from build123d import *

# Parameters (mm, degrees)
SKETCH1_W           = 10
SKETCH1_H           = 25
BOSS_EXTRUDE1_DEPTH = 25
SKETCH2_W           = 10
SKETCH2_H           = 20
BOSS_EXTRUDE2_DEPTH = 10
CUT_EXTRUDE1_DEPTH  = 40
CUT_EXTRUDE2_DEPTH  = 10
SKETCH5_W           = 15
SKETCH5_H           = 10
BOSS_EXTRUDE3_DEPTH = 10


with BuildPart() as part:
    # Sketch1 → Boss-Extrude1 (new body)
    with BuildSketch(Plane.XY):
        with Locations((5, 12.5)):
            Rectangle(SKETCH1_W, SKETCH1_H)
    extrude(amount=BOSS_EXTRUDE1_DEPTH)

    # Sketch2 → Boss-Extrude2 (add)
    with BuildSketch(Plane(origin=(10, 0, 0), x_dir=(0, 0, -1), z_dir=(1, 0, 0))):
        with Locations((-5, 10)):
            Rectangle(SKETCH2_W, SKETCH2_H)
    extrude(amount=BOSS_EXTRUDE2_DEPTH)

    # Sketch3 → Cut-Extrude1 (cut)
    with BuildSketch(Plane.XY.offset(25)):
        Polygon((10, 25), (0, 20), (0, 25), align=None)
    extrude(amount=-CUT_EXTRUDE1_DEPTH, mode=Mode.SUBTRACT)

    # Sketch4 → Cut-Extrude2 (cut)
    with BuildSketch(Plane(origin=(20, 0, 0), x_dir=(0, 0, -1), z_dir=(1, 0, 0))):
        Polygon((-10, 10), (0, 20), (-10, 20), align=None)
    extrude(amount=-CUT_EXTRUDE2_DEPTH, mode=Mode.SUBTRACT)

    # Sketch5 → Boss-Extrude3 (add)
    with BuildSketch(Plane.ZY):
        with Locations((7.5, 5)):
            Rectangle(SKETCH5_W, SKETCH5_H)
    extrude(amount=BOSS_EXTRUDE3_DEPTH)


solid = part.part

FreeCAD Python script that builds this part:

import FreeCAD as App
import Part
import Sketcher
from FreeCAD import Vector


def add_polygon(sketch, points):
    """Adds a closed chain of lines whose ends are joined by coincident constraints."""
    first, n = sketch.GeometryCount, len(points)
    for a, b in zip(points, points[1:] + points[:1]):
        sketch.addGeometry(Part.LineSegment(App.Vector(*a, 0), App.Vector(*b, 0)), False)
    for i in range(n):
        sketch.addConstraint(Sketcher.Constraint("Coincident", first + i, 2, first + (i + 1) % n, 1))

doc = App.newDocument("Part")
params = doc.addObject("Spreadsheet::Sheet", "Params")
for row, (alias, value) in enumerate([
    ("sketch1_width", "10 mm"),
    ("sketch1_height", "25 mm"),
    ("pad1_length", "25 mm"),
    ("sketch2_width", "20 mm"),
    ("sketch2_height", "10 mm"),
    ("pad2_length", "10 mm"),
    ("sketch3_width", "10 mm"),
    ("sketch3_height", "5 mm"),
    ("pocket1_length", "40 mm"),
    ("sketch4_width", "10 mm"),
    ("pocket2_length", "10 mm"),
    ("sketch5_width", "10 mm"),
    ("sketch5_height", "15 mm"),
    ("pad3_length", "10 mm"),
], start=1):
    params.set(f"A{row}", alias)
    params.set(f"B{row}", "=" + value)
    params.setAlias(f"B{row}", alias)

body = doc.addObject("PartDesign::Body", "Body")

# Sketch on XY plane
sketch1 = body.newObject("Sketcher::SketchObject", "Sketch")
sketch1.AttachmentSupport = (doc.getObject("XY_Plane"), [""])
sketch1.MapMode = "FlatFace"
add_polygon(sketch1, [(0, 25), (0, 0), (10, 0), (10, 25)])  # lines 0-3
sketch1.addConstraint([
    Sketcher.Constraint("Vertical", 0),
    Sketcher.Constraint("Horizontal", 1),
    Sketcher.Constraint("Vertical", 2),
    Sketcher.Constraint("Horizontal", 3),
    Sketcher.Constraint("Coincident", 0, 2, -1, 1),
    Sketcher.Constraint("DistanceX", 1, 1, 1, 2, 10.0),
    Sketcher.Constraint("DistanceY", 0, 2, 0, 1, 25.0),
])
sketch1.setExpression("Constraints[9]", "Params.sketch1_width")
sketch1.setExpression("Constraints[10]", "Params.sketch1_height")
pad1 = body.newObject("PartDesign::Pad", "Pad")
pad1.Profile = sketch1
pad1.setExpression("Length", "Params.pad1_length")

# Sketch on YZ plane
sketch2 = body.newObject("Sketcher::SketchObject", "Sketch001")
sketch2.AttachmentSupport = (doc.getObject("YZ_Plane"), [""])
sketch2.MapMode = "FlatFace"
sketch2.AttachmentOffset = App.Placement(Vector(0, 0, 10), App.Rotation())
add_polygon(sketch2, [(20, 10), (0, 10), (0, 0), (20, 0)])  # lines 0-3
sketch2.addConstraint([
    Sketcher.Constraint("Horizontal", 0),
    Sketcher.Constraint("Vertical", 1),
    Sketcher.Constraint("Horizontal", 2),
    Sketcher.Constraint("Vertical", 3),
    Sketcher.Constraint("Coincident", 1, 2, -1, 1),
    Sketcher.Constraint("DistanceX", 0, 2, 0, 1, 20.0),
    Sketcher.Constraint("DistanceY", 1, 2, 1, 1, 10.0),
])
sketch2.setExpression("Constraints[9]", "Params.sketch2_width")
sketch2.setExpression("Constraints[10]", "Params.sketch2_height")
pad2 = body.newObject("PartDesign::Pad", "Pad001")
pad2.Profile = sketch2
pad2.setExpression("Length", "Params.pad2_length")

# Sketch on XY plane
sketch3 = body.newObject("Sketcher::SketchObject", "Sketch002")
sketch3.AttachmentSupport = (doc.getObject("XY_Plane"), [""])
sketch3.MapMode = "FlatFace"
sketch3.AttachmentOffset = App.Placement(Vector(0, 0, 25), App.Rotation())
add_polygon(sketch3, [(0, 20), (10, 25), (0, 25)])  # lines 0-2
sketch3.addConstraint([
    Sketcher.Constraint("Horizontal", 1),
    Sketcher.Constraint("Vertical", 2),
    Sketcher.Constraint("PointOnObject", 1, 2, -2),
    Sketcher.Constraint("DistanceX", 1, 2, 1, 1, 10.0),
    Sketcher.Constraint("DistanceY", 2, 2, 2, 1, 5.0),
    Sketcher.Constraint("DistanceY", -1, 1, 0, 2, 25.0),
])
sketch3.setExpression("Constraints[6]", "Params.sketch3_width")
sketch3.setExpression("Constraints[7]", "Params.sketch3_height")
pocket1 = body.newObject("PartDesign::Pocket", "Pocket")
pocket1.Profile = sketch3
pocket1.setExpression("Length", "Params.pocket1_length")

# Sketch on YZ plane
sketch4 = body.newObject("Sketcher::SketchObject", "Sketch003")
sketch4.AttachmentSupport = (doc.getObject("YZ_Plane"), [""])
sketch4.MapMode = "FlatFace"
sketch4.AttachmentOffset = App.Placement(Vector(0, 0, 20), App.Rotation())
add_polygon(sketch4, [(10, 10), (20, 0), (20, 10)])  # lines 0-2
sketch4.addConstraint([
    Sketcher.Constraint("Vertical", 1),
    Sketcher.Constraint("Horizontal", 2),
    Sketcher.Constraint("PointOnObject", 0, 2, -1),
    Sketcher.Constraint("Equal", 2, 1),
    Sketcher.Constraint("DistanceX", 2, 2, 2, 1, 10.0),
    Sketcher.Constraint("DistanceX", -1, 1, 0, 2, 20.0),
])
sketch4.setExpression("Constraints[7]", "Params.sketch4_width")
pocket2 = body.newObject("PartDesign::Pocket", "Pocket001")
pocket2.Profile = sketch4
pocket2.setExpression("Length", "Params.pocket2_length")

# Sketch on YZ plane
sketch5 = body.newObject("Sketcher::SketchObject", "Sketch004")
sketch5.AttachmentSupport = (doc.getObject("YZ_Plane"), [""])
sketch5.MapMode = "FlatFace"
add_polygon(sketch5, [(10, 0), (0, 0), (0, 15), (10, 15)])  # lines 0-3
sketch5.addConstraint([
    Sketcher.Constraint("Horizontal", 0),
    Sketcher.Constraint("Vertical", 1),
    Sketcher.Constraint("Horizontal", 2),
    Sketcher.Constraint("Vertical", 3),
    Sketcher.Constraint("Coincident", 0, 2, -1, 1),
    Sketcher.Constraint("DistanceX", 0, 2, 0, 1, 10.0),
    Sketcher.Constraint("DistanceY", 1, 1, 1, 2, 15.0),
])
sketch5.setExpression("Constraints[9]", "Params.sketch5_width")
sketch5.setExpression("Constraints[10]", "Params.sketch5_height")
pad3 = body.newObject("PartDesign::Pad", "Pad002")
pad3.Profile = sketch5
pad3.setExpression("Length", "Params.pad3_length")
pad3.Reversed = True

doc.recompute()
